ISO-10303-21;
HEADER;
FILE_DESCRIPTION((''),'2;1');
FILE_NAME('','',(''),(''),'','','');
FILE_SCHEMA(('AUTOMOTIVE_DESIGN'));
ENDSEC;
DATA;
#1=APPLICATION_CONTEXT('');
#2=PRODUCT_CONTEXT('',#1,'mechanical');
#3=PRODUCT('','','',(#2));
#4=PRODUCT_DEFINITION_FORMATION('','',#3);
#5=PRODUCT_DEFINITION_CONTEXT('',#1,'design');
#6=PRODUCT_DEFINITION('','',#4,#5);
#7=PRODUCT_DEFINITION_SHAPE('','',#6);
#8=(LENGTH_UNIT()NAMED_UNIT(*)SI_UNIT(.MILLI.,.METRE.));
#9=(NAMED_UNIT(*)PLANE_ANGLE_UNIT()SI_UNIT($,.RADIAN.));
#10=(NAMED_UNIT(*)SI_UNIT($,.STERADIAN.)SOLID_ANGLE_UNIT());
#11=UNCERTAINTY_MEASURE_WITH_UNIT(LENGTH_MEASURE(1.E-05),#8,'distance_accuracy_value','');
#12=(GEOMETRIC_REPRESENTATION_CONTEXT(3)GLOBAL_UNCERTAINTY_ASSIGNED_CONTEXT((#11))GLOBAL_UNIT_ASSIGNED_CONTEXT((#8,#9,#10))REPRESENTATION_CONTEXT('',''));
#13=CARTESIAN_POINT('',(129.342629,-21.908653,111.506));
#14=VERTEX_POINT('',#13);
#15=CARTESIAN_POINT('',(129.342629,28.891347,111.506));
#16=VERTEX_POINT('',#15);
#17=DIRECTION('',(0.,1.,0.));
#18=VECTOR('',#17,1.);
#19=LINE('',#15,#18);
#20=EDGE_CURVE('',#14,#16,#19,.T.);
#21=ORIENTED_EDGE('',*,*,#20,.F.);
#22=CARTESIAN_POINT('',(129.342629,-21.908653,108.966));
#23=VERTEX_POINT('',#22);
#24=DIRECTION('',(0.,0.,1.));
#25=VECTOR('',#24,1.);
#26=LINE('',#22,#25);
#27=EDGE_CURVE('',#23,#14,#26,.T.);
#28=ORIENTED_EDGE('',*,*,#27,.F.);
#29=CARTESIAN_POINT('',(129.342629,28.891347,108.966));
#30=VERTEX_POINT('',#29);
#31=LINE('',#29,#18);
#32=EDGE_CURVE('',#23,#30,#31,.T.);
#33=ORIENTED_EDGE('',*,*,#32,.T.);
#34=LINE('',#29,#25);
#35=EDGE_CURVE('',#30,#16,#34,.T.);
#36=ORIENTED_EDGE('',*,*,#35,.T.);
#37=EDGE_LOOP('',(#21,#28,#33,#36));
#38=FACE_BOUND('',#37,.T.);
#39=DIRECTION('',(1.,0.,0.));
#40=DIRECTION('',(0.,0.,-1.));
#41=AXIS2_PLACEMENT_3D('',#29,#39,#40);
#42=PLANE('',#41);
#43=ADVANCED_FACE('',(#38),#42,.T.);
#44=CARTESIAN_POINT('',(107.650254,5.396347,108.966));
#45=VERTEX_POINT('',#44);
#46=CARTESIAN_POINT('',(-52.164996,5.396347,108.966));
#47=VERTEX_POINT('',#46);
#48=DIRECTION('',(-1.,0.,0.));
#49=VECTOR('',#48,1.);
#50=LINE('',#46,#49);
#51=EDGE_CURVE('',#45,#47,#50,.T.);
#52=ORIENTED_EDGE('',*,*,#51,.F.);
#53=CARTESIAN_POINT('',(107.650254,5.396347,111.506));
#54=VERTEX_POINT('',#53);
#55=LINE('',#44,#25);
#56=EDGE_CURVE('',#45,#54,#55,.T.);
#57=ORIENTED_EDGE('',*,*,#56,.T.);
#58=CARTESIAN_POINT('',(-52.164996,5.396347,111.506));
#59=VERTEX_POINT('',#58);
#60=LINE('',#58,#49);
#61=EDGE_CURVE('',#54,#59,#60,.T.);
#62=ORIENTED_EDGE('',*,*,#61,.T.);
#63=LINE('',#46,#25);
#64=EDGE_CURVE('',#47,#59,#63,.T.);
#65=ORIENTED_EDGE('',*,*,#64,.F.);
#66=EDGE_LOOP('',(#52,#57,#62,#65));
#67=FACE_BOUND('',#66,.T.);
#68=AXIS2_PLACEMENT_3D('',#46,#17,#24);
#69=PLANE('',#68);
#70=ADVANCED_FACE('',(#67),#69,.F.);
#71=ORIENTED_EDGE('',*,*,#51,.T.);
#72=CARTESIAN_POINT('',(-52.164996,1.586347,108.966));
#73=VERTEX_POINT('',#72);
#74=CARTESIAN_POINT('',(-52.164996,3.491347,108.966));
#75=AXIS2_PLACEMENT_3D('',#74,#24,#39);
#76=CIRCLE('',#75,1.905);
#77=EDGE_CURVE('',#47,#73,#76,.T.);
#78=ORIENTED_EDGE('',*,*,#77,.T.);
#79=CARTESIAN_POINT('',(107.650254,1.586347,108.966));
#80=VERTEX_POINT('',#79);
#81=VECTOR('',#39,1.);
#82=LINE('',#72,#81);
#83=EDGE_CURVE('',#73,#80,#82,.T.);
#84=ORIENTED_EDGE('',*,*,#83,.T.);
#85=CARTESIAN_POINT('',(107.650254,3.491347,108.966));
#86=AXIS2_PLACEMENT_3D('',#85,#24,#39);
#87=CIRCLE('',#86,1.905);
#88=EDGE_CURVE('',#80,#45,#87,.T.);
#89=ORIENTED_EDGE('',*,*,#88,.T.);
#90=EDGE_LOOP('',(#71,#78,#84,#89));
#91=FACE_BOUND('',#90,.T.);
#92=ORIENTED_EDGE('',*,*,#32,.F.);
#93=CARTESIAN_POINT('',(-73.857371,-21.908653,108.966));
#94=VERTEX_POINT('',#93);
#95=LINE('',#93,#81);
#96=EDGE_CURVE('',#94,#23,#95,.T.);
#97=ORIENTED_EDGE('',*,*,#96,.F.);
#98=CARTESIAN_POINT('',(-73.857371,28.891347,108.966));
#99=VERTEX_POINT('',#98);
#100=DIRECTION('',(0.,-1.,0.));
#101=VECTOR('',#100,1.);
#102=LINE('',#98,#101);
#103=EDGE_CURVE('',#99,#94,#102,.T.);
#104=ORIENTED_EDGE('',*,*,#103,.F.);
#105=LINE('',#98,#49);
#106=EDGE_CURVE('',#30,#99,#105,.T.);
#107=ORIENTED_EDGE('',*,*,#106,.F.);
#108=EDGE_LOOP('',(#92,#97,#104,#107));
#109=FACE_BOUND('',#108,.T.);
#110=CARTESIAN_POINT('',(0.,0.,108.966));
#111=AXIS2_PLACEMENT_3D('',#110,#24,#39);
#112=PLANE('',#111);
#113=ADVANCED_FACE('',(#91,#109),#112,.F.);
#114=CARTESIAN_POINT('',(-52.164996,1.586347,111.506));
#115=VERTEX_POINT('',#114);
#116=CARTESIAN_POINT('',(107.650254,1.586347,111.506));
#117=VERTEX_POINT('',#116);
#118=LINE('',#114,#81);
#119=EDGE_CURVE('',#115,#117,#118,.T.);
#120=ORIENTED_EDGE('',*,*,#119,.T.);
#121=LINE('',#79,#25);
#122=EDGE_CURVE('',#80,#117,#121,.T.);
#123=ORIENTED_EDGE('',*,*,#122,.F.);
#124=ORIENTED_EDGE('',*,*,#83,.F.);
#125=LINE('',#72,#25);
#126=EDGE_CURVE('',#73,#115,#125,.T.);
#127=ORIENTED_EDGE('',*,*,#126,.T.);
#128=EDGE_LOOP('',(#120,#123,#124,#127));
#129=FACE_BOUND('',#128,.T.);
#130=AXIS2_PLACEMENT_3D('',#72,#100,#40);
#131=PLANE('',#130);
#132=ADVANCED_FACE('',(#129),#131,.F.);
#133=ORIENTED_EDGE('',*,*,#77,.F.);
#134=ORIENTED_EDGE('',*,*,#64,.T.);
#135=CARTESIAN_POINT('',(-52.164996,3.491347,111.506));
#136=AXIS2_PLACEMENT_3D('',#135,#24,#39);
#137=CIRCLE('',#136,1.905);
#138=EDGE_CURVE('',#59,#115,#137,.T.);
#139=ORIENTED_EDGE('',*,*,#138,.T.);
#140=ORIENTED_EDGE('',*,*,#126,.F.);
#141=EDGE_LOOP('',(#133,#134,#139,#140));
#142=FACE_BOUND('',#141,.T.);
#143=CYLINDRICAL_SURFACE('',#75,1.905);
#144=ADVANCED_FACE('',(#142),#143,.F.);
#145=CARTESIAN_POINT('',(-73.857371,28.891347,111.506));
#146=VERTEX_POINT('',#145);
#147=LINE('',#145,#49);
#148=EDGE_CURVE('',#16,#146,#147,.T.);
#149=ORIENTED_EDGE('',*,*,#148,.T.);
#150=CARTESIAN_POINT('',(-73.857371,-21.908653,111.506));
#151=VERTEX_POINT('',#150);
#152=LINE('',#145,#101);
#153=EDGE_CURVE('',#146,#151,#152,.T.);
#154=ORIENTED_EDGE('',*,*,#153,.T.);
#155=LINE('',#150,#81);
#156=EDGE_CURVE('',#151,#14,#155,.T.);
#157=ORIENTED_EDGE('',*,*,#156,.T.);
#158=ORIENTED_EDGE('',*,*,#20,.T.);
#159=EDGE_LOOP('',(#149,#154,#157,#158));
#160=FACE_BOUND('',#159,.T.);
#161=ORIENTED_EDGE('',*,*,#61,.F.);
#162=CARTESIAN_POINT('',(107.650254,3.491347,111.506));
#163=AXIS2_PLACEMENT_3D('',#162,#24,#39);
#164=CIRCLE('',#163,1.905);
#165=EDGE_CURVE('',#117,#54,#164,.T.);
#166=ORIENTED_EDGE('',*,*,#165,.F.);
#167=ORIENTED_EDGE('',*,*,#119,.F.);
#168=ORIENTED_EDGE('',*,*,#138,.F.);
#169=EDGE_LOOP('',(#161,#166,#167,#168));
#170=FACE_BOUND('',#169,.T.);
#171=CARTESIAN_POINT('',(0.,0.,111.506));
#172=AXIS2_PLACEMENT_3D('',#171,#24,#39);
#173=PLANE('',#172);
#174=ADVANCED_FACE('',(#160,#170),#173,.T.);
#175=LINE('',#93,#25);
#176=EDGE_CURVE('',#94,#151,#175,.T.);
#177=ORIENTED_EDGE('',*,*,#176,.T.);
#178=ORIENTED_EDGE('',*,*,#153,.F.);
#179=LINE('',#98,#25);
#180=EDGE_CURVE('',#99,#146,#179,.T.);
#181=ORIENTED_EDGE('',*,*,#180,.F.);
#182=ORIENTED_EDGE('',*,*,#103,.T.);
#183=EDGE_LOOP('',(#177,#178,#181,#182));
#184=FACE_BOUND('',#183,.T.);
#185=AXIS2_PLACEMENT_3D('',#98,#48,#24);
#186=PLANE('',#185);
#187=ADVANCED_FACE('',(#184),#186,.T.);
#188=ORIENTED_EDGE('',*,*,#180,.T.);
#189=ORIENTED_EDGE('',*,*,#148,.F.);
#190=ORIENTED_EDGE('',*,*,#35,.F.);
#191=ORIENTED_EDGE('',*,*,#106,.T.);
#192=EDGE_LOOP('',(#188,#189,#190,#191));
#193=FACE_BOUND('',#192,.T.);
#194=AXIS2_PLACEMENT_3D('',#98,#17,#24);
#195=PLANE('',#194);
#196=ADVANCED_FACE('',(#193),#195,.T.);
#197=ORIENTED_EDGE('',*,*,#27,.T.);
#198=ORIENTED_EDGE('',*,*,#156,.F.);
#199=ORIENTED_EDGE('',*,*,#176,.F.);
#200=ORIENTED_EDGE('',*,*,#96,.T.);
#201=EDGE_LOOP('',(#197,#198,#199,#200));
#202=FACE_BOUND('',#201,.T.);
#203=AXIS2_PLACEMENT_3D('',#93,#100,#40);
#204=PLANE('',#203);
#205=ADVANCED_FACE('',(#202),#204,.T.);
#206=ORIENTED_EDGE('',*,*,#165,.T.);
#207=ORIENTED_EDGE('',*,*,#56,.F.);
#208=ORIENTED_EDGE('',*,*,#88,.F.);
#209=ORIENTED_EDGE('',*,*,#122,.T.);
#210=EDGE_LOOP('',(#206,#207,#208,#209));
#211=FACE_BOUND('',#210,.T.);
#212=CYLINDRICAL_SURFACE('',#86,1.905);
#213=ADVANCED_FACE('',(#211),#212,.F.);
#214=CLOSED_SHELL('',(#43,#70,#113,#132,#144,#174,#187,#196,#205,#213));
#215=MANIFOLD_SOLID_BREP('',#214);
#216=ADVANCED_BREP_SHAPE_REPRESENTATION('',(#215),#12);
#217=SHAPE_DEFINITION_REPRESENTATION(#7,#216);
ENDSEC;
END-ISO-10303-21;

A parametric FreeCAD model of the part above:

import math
import FreeCAD as App
import Part
import Sketcher

V = App.Vector
Q = App.Units.Quantity


def add_polygon(sketch, points):
    """Adds a closed chain of lines whose ends are joined by coincident constraints."""
    first, n = sketch.GeometryCount, len(points)
    for a, b in zip(points, points[1:] + points[:1]):
        sketch.addGeometry(Part.LineSegment(App.Vector(*a, 0), App.Vector(*b, 0)), False)
    for i in range(n):
        sketch.addConstraint(Sketcher.Constraint("Coincident", first + i, 2, first + (i + 1) % n, 1))

doc = App.newDocument("Part")
params = doc.addObject("Spreadsheet::Sheet", "Params")
for row, (alias, value) in enumerate([
    ("sketch1_width", "8 in"),
    ("sketch1_height", "2 in"),
    ("sketch1_radius", "0.075 in"),
    ("pad1_length", "0.1 in"),
], start=1):
    params.set(f"A{row}", alias)
    params.set(f"B{row}", "=" + value)
    params.setAlias(f"B{row}", alias)

body = doc.addObject("PartDesign::Body", "Body")

# Sketch on XY plane
sketch1 = body.newObject("Sketcher::SketchObject", "Sketch")
sketch1.AttachmentSupport = (doc.getObject("XY_Plane"), [""])
sketch1.MapMode = "FlatFace"
sketch1.AttachmentOffset = App.Placement(V(0, 0, 4.39 * 25.4), App.Rotation())
add_polygon(sketch1, [(-73.9, 28.9), (-73.9, -21.9), (129.3, -21.9), (129.3, 28.9)])  # lines 0-3
sketch1.addGeometry(Part.ArcOfCircle(Part.Circle(V(-52.2, 3.5, 0), V(0, 0, 1), 1.9), math.radians(90), math.radians(270)), False)  # 4
sketch1.addGeometry(Part.LineSegment(V(-52.2, 5.4, 0), V(107.7, 5.4, 0)), False)  # 5
sketch1.addGeometry(Part.ArcOfCircle(Part.Circle(V(107.7, 3.5, 0), V(0, 0, 1), 1.9), math.radians(-90), math.radians(90)), False)  # 6
sketch1.addGeometry(Part.LineSegment(V(107.7, 1.6, 0), V(-52.2, 1.6, 0)), False)  # 7
sketch1.addConstraint([
    Sketcher.Constraint("Tangent", 4, 1, 5, 1),
    Sketcher.Constraint("Tangent", 5, 2, 6, 2),
    Sketcher.Constraint("Tangent", 6, 1, 7, 1),
    Sketcher.Constraint("Tangent", 7, 2, 4, 2),
    Sketcher.Constraint("Vertical", 0),
    Sketcher.Constraint("Horizontal", 1),
    Sketcher.Constraint("Vertical", 2),
    Sketcher.Constraint("Horizontal", 3),
    Sketcher.Constraint("Horizontal", 5),
    Sketcher.Constraint("Horizontal", 7),
    Sketcher.Constraint("DistanceX", 1, 1, 1, 2, Q("8 in")),
    Sketcher.Constraint("DistanceY", 0, 2, 0, 1, Q("2 in")),
    Sketcher.Constraint("Radius", 4, Q("0.075 in")),
    Sketcher.Constraint("DistanceY", 0, 2, 4, 3, Q("1 in")),
    Sketcher.Constraint("DistanceX", 5, 1, 5, 2, Q("159.815251 mm")),
    Sketcher.Constraint("DistanceX", 0, 2, -1, 1, Q("73.857371 mm")),
    Sketcher.Constraint("DistanceX", 4, 3, -1, 1, Q("52.164996 mm")),
    Sketcher.Constraint("DistanceY", -1, 1, 4, 3, Q("3.491347 mm")),
])
sketch1.setExpression("Constraints[14]", "Params.sketch1_width")
sketch1.setExpression("Constraints[15]", "Params.sketch1_height")
sketch1.setExpression("Constraints[16]", "Params.sketch1_radius")
pad1 = body.newObject("PartDesign::Pad", "Pad")
pad1.Profile = sketch1
pad1.setExpression("Length", "Params.pad1_length")
pad1.Reversed = True

doc.recompute()
